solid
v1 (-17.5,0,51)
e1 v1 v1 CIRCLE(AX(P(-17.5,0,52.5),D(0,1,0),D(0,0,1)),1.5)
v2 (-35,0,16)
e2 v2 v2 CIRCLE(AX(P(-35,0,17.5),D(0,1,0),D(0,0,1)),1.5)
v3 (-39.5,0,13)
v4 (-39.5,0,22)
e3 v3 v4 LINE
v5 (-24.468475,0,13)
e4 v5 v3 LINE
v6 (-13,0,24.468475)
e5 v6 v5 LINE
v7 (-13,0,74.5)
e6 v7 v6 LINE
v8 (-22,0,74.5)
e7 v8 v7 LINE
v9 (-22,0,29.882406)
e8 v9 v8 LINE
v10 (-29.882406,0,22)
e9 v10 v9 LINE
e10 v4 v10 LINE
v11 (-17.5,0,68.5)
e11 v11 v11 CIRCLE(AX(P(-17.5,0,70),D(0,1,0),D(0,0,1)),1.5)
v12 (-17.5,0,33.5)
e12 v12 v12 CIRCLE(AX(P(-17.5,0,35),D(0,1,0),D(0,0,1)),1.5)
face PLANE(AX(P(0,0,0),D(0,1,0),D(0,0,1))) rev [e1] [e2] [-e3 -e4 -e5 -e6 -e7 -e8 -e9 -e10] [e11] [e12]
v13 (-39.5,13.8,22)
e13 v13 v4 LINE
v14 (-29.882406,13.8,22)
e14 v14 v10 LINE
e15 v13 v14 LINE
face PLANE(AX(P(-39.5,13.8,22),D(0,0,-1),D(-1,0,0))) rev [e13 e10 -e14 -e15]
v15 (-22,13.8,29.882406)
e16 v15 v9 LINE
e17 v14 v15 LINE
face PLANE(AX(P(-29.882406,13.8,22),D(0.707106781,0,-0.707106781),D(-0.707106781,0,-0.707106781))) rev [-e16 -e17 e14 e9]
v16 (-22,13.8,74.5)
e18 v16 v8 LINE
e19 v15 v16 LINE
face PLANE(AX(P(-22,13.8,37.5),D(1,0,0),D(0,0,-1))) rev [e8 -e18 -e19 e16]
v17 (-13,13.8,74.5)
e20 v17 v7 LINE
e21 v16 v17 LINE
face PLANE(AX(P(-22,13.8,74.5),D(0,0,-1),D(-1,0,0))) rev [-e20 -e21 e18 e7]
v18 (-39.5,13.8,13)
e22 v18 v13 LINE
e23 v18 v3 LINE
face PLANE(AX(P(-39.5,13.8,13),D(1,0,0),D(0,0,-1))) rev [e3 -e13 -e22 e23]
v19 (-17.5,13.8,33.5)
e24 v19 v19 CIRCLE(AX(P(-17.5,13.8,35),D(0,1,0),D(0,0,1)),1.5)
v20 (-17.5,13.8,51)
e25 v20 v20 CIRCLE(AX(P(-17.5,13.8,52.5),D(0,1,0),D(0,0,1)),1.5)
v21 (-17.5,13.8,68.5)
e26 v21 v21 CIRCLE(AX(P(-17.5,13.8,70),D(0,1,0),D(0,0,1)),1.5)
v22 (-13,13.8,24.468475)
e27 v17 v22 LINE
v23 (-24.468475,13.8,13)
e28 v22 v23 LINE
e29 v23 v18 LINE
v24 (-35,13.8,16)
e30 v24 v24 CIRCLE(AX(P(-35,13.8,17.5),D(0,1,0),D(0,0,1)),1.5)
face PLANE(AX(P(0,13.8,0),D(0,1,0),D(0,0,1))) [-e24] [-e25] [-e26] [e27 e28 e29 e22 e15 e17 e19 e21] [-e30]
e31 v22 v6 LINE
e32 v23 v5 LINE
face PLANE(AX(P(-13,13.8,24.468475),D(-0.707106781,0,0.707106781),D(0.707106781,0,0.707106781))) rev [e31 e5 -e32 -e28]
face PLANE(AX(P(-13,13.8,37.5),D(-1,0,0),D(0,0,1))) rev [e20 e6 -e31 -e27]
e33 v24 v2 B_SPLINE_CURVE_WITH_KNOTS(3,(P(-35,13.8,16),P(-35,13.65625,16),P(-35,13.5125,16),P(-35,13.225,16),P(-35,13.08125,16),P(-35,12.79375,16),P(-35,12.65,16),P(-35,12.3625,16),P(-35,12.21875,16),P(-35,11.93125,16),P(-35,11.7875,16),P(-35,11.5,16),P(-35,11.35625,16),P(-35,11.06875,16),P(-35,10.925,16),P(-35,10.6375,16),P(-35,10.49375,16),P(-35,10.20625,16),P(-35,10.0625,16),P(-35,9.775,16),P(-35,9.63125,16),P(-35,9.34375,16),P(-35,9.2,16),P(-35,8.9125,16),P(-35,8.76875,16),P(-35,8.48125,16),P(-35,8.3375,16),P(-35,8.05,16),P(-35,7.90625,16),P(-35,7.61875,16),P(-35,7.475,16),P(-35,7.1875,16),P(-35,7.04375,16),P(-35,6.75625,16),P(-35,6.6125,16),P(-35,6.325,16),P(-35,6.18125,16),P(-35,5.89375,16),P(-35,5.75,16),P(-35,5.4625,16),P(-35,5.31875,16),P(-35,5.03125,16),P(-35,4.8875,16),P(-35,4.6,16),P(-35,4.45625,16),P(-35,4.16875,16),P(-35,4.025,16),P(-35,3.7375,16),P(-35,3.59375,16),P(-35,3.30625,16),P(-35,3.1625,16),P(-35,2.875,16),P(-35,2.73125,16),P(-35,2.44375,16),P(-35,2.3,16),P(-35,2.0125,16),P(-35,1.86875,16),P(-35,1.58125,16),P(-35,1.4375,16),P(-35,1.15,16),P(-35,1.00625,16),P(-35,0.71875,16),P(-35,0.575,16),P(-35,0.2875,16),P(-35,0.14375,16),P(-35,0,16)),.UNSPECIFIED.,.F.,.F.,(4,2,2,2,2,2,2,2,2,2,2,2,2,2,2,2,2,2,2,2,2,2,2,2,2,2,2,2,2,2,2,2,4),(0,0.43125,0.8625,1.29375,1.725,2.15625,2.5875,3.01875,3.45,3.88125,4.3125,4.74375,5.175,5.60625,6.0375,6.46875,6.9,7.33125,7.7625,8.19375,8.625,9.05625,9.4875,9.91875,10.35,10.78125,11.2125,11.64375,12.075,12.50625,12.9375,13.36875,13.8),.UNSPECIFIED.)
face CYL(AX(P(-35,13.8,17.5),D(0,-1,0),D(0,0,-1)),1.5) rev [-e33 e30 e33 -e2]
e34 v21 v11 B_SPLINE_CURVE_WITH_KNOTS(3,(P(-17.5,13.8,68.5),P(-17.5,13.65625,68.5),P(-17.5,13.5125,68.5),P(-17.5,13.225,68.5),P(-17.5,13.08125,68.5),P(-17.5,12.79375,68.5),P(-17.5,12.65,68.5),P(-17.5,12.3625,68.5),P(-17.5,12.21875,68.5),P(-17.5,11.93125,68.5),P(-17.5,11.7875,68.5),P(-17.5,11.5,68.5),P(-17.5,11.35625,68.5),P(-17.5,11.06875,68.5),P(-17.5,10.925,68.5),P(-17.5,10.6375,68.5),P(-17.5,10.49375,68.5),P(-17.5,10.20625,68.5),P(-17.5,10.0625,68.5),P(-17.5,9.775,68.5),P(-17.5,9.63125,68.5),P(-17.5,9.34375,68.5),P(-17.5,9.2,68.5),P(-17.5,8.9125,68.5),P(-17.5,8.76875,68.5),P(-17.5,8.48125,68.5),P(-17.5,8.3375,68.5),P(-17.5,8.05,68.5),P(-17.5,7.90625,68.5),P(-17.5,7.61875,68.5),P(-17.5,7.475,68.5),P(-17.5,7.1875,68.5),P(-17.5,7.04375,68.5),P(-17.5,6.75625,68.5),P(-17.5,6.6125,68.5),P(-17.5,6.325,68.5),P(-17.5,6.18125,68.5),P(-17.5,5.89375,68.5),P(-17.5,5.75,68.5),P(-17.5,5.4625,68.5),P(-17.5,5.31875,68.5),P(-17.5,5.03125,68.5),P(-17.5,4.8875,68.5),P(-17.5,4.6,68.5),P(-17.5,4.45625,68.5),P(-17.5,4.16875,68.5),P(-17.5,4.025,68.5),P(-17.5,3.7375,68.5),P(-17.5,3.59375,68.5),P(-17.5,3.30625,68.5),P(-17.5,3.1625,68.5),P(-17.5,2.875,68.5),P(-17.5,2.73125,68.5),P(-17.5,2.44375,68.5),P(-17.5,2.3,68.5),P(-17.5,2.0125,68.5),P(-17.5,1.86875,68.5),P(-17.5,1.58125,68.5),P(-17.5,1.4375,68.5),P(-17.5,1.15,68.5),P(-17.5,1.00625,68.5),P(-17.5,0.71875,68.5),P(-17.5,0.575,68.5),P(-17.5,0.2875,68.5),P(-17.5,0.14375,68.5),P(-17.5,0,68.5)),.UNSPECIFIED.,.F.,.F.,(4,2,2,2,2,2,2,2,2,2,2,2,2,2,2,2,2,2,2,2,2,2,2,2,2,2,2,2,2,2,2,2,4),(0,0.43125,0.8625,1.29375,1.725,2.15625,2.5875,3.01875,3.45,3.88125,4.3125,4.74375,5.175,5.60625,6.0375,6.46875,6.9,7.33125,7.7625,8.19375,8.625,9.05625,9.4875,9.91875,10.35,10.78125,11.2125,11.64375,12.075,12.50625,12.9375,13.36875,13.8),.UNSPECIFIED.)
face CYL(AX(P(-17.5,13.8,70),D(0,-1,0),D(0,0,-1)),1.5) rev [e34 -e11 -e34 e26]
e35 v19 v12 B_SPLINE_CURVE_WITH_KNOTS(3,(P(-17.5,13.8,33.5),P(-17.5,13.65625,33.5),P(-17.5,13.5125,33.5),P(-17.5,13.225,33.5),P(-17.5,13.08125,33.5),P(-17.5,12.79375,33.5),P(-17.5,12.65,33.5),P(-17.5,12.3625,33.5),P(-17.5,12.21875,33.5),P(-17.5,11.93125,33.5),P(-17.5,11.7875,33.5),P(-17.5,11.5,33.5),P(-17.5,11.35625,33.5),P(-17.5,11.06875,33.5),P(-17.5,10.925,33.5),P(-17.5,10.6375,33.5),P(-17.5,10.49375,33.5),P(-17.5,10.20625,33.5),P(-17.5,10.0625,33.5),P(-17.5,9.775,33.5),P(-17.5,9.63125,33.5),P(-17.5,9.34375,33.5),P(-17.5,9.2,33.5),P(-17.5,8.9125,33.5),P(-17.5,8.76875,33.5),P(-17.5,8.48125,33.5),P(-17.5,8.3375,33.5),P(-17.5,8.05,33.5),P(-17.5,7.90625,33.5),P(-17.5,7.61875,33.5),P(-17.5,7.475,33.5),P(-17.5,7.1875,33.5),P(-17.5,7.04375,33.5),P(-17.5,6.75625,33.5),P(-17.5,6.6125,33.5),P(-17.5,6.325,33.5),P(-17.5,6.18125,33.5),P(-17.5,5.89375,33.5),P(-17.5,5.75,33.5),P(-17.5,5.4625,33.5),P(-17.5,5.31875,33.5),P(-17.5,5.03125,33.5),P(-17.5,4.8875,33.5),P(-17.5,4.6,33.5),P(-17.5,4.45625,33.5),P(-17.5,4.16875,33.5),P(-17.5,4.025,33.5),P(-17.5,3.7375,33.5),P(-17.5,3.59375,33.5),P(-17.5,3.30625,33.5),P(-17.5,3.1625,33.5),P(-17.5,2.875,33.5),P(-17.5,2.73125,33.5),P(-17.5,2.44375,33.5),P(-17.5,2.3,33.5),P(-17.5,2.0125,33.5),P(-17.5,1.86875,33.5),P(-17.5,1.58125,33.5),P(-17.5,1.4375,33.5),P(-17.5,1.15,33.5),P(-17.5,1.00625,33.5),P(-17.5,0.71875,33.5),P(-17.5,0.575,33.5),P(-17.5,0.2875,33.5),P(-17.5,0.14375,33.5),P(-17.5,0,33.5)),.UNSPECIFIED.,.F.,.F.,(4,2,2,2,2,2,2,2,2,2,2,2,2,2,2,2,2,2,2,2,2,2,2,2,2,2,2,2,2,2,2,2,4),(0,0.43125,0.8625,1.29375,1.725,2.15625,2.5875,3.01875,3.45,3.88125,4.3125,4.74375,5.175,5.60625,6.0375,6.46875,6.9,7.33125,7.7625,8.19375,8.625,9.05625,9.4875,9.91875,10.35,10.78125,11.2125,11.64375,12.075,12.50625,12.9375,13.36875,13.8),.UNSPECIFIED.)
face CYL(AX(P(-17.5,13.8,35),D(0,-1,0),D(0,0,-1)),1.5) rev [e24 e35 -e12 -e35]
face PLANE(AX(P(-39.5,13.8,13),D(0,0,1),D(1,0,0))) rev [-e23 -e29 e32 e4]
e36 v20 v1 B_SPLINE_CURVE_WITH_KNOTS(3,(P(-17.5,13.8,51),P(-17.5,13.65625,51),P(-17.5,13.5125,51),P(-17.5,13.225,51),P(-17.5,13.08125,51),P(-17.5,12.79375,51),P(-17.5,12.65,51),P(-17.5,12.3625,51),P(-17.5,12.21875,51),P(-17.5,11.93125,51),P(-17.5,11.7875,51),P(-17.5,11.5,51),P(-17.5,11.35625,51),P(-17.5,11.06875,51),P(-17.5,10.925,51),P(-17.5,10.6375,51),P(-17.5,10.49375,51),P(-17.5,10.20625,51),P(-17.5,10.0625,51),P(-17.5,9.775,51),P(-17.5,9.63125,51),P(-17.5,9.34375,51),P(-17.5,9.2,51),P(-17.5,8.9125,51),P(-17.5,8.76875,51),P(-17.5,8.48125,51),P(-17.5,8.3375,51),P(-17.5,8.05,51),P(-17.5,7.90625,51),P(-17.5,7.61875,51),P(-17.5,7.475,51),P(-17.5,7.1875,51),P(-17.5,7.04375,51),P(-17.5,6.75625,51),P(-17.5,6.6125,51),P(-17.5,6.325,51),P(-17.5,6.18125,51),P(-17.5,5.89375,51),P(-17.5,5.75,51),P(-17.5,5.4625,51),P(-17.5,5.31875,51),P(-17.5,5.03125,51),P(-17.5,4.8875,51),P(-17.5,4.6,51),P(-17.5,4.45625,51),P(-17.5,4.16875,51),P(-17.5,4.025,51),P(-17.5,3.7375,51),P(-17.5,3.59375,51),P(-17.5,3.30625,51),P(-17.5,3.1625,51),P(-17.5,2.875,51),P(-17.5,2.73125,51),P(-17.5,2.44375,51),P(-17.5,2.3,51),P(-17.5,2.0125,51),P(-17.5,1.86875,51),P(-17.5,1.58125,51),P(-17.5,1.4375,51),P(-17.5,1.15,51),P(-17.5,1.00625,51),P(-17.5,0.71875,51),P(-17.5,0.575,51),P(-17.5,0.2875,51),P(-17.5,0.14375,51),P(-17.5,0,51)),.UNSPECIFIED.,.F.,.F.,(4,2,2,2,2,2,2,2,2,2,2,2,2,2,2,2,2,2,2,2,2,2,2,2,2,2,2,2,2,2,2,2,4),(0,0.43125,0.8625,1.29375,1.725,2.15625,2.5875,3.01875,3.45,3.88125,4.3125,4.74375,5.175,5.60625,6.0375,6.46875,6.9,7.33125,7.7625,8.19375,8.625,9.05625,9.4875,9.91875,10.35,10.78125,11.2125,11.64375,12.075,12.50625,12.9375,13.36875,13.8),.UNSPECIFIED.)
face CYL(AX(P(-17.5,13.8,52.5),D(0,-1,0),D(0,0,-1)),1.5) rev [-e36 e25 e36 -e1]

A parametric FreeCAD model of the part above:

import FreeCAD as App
import Part
import Sketcher

V = App.Vector
Q = App.Units.Quantity

doc = App.newDocument("Part")
params = doc.addObject("Spreadsheet::Sheet", "Params")
for row, (alias, value) in enumerate([
    ("sketch1_diameter", "3 mm"),
    ("sketch1_width", "9 mm"),
    ("pad1_length", "13.8 mm"),
], start=1):
    params.set(f"A{row}", alias)
    params.set(f"B{row}", "=" + value)
    params.setAlias(f"B{row}", alias)

body = doc.addObject("PartDesign::Body", "Body")

# Sketch on XZ plane
sketch1 = body.newObject("Sketcher::SketchObject", "Sketch")
sketch1.AttachmentSupport = (doc.getObject("XZ_Plane"), [""])
sketch1.MapMode = "FlatFace"
sketch1.addGeometry([
    Part.LineSegment(V(-39.5, 13, 0), V(-39.5, 22, 0)),  # 0
    Part.LineSegment(V(-39.5, 22, 0), V(-29.9, 22, 0)),  # 1
    Part.LineSegment(V(-29.9, 22, 0), V(-22, 29.9, 0)),  # 2
    Part.LineSegment(V(-22, 29.9, 0), V(-22, 74.5, 0)),  # 3
    Part.LineSegment(V(-22, 74.5, 0), V(-13, 74.5, 0)),  # 4
    Part.LineSegment(V(-13, 74.5, 0), V(-13, 24.5, 0)),  # 5
    Part.LineSegment(V(-13, 24.5, 0), V(-24.5, 13, 0)),  # 6
    Part.LineSegment(V(-24.5, 13, 0), V(-39.5, 13, 0)),  # 7
    Part.Circle(V(-17.5, 70, 0), V(0, 0, 1), 1.5),  # 8
    Part.Circle(V(-17.5, 52.5, 0), V(0, 0, 1), 1.5),  # 9
    Part.Circle(V(-35, 17.5, 0), V(0, 0, 1), 1.5),  # 10
    Part.Circle(V(-17.5, 35, 0), V(0, 0, 1), 1.5),  # 11
], False)
sketch1.addConstraint([
    Sketcher.Constraint("Coincident", 0, 2, 1, 1),
    Sketcher.Constraint("Coincident", 1, 2, 2, 1),
    Sketcher.Constraint("Coincident", 2, 2, 3, 1),
    Sketcher.Constraint("Coincident", 3, 2, 4, 1),
    Sketcher.Constraint("Coincident", 4, 2, 5, 1),
    Sketcher.Constraint("Coincident", 5, 2, 6, 1),
    Sketcher.Constraint("Coincident", 6, 2, 7, 1),
    Sketcher.Constraint("Coincident", 7, 2, 0, 1),
    Sketcher.Constraint("Vertical", 0),
    Sketcher.Constraint("Horizontal", 1),
    Sketcher.Constraint("Vertical", 3),
    Sketcher.Constraint("Horizontal", 4),
    Sketcher.Constraint("Vertical", 5),
    Sketcher.Constraint("Horizontal", 7),
    Sketcher.Constraint("Equal", 8, 9),
    Sketcher.Constraint("Equal", 9, 10),
    Sketcher.Constraint("Equal", 10, 11),
    Sketcher.Constraint("Parallel", 2, 6),
    Sketcher.Constraint("Vertical", 8, 3, 9, 3),
    Sketcher.Constraint("Vertical", 9, 3, 11, 3),
    Sketcher.Constraint("Equal", 4, 0),
    Sketcher.Constraint("Diameter", 8, Q("3 mm")),
    Sketcher.Constraint("DistanceX", 4, 1, 4, 2, Q("9 mm")),
    Sketcher.Constraint("Angle", 2, Q("45 deg")),
    Sketcher.Constraint("DistanceY", -1, 1, 8, 3, Q("70 mm")),
    Sketcher.Constraint("DistanceX", 10, 3, -1, 1, Q("35 mm")),
    Sketcher.Constraint("DistanceY", -1, 1, 11, 3, Q("35 mm")),
    Sketcher.Constraint("DistanceY", -1, 1, 0, 2, Q("22 mm")),
    Sketcher.Constraint("DistanceX", 2, 2, -1, 1, Q("22 mm")),
    Sketcher.Constraint("DistanceY", 10, 3, 9, 3, Q("35 mm")),
    Sketcher.Constraint("DistanceX", 0, 2, 11, 3, Q("22 mm")),
    Sketcher.Constraint("DistanceY", 9, 3, 3, 2, Q("22 mm")),
    Sketcher.Constraint("DistanceX", 8, 3, -1, 1, Q("17.5 mm")),
    Sketcher.Constraint("DistanceY", -1, 1, 9, 3, Q("52.5 mm")),
    Sketcher.Constraint("DistanceX", 1, 1, 1, 2, Q("9.617594 mm")),
    Sketcher.Constraint("DistanceX", 7, 2, 7, 1, Q("15.031525 mm")),
])
sketch1.setExpression("Constraints[21]", "Params.sketch1_diameter")
sketch1.setExpression("Constraints[22]", "Params.sketch1_width")
pad1 = body.newObject("PartDesign::Pad", "Pad")
pad1.Profile = sketch1
pad1.setExpression("Length", "Params.pad1_length")
pad1.Reversed = True

doc.recompute()
